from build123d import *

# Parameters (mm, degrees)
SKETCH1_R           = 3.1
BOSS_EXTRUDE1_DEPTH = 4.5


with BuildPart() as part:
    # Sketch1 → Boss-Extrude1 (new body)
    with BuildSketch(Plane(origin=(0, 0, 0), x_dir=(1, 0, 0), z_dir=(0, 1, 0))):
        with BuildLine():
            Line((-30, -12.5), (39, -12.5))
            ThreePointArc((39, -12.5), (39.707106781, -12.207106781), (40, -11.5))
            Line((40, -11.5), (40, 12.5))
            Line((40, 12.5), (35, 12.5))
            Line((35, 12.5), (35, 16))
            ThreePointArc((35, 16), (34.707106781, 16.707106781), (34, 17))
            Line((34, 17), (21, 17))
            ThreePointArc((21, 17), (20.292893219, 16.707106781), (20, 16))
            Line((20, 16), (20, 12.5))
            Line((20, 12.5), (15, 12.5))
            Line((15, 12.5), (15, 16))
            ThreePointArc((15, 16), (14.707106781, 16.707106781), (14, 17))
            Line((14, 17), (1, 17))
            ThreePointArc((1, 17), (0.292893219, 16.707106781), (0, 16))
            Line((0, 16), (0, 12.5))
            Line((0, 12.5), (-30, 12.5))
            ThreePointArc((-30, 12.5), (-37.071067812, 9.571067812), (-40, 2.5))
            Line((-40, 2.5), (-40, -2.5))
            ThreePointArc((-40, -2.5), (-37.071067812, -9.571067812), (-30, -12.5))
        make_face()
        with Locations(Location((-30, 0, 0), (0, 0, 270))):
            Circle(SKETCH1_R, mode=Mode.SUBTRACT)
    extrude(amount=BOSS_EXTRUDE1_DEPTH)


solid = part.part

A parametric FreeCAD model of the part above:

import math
import FreeCAD as App
import Part
import Sketcher
Q = App.Units.Quantity

doc = App.newDocument("Part")
params = doc.addObject("Spreadsheet::Sheet", "Params")
for row, (alias, value) in enumerate([
    ("sketch1_radius", "1 mm"),
    ("sketch1_radius2", "10 mm"),
    ("sketch1_diameter", "6.2 mm"),
    ("sketch1_width", "69 mm"),
    ("sketch1_width2", "5 mm"),
    ("pad1_length", "4.5 mm"),
], start=1):
    params.set(f"A{row}", alias)
    params.set(f"B{row}", "=" + value)
    params.setAlias(f"B{row}", alias)

body = doc.addObject("PartDesign::Body", "Body")

# Sketch on XZ plane
sketch1 = doc.addObject("Sketcher::SketchObject", "Sketch")
body.addObject(sketch1)
sketch1.AttachmentSupport = (doc.XZ_Plane, [""])
sketch1.MapMode = "FlatFace"
sketch1.addGeometry(Part.LineSegment(App.Vector(-30, 12.5, 0), App.Vector(39, 12.5, 0)), False)
sketch1.addGeometry(Part.ArcOfCircle(Part.Circle(App.Vector(39, 11.5, 0), App.Vector(0, 0, 1), 1), math.radians(0), math.radians(90)), False)
sketch1.addGeometry(Part.LineSegment(App.Vector(40, 11.5, 0), App.Vector(40, -12.5, 0)), False)
sketch1.addGeometry(Part.LineSegment(App.Vector(40, -12.5, 0), App.Vector(35, -12.5, 0)), False)
sketch1.addGeometry(Part.LineSegment(App.Vector(35, -12.5, 0), App.Vector(35, -16, 0)), False)
sketch1.addGeometry(Part.ArcOfCircle(Part.Circle(App.Vector(34, -16, 0), App.Vector(0, 0, 1), 1), math.radians(-90), math.radians(0)), False)
sketch1.addGeometry(Part.LineSegment(App.Vector(34, -17, 0), App.Vector(21, -17, 0)), False)
sketch1.addGeometry(Part.ArcOfCircle(Part.Circle(App.Vector(21, -16, 0), App.Vector(0, 0, 1), 1), math.radians(-180), math.radians(-90)), False)
sketch1.addGeometry(Part.LineSegment(App.Vector(20, -16, 0), App.Vector(20, -12.5, 0)), False)
sketch1.addGeometry(Part.LineSegment(App.Vector(20, -12.5, 0), App.Vector(15, -12.5, 0)), False)
sketch1.addGeometry(Part.LineSegment(App.Vector(15, -12.5, 0), App.Vector(15, -16, 0)), False)
sketch1.addGeometry(Part.ArcOfCircle(Part.Circle(App.Vector(14, -16, 0), App.Vector(0, 0, 1), 1), math.radians(-90), math.radians(0)), False)
sketch1.addGeometry(Part.LineSegment(App.Vector(14, -17, 0), App.Vector(1, -17, 0)), False)
sketch1.addGeometry(Part.ArcOfCircle(Part.Circle(App.Vector(1, -16, 0), App.Vector(0, 0, 1), 1), math.radians(-180), math.radians(-90)), False)
sketch1.addGeometry(Part.LineSegment(App.Vector(0, -16, 0), App.Vector(0, -12.5, 0)), False)
sketch1.addGeometry(Part.LineSegment(App.Vector(0, -12.5, 0), App.Vector(-30, -12.5, 0)), False)
sketch1.addGeometry(Part.ArcOfCircle(Part.Circle(App.Vector(-30, -2.5, 0), App.Vector(0, 0, 1), 10), math.radians(180), math.radians(270)), False)
sketch1.addGeometry(Part.LineSegment(App.Vector(-40, -2.5, 0), App.Vector(-40, 2.5, 0)), False)
sketch1.addGeometry(Part.ArcOfCircle(Part.Circle(App.Vector(-30, 2.5, 0), App.Vector(0, 0, 1), 10), math.radians(90), math.radians(180)), False)
sketch1.addGeometry(Part.Circle(App.Vector(-30, 0, 0), App.Vector(0, 0, 1), 3.1), False)
sketch1.addConstraint(Sketcher.Constraint("Tangent", 0, 2, 1, 2))
sketch1.addConstraint(Sketcher.Constraint("Tangent", 1, 1, 2, 1))
sketch1.addConstraint(Sketcher.Constraint("Coincident", 2, 2, 3, 1))
sketch1.addConstraint(Sketcher.Constraint("Coincident", 3, 2, 4, 1))
sketch1.addConstraint(Sketcher.Constraint("Tangent", 4, 2, 5, 2))
sketch1.addConstraint(Sketcher.Constraint("Tangent", 5, 1, 6, 1))
sketch1.addConstraint(Sketcher.Constraint("Tangent", 6, 2, 7, 2))
sketch1.addConstraint(Sketcher.Constraint("Tangent", 7, 1, 8, 1))
sketch1.addConstraint(Sketcher.Constraint("Coincident", 8, 2, 9, 1))
sketch1.addConstraint(Sketcher.Constraint("Coincident", 9, 2, 10, 1))
sketch1.addConstraint(Sketcher.Constraint("Tangent", 10, 2, 11, 2))
sketch1.addConstraint(Sketcher.Constraint("Tangent", 11, 1, 12, 1))
sketch1.addConstraint(Sketcher.Constraint("Tangent", 12, 2, 13, 2))
sketch1.addConstraint(Sketcher.Constraint("Tangent", 13, 1, 14, 1))
sketch1.addConstraint(Sketcher.Constraint("Coincident", 14, 2, 15, 1))
sketch1.addConstraint(Sketcher.Constraint("Tangent", 15, 2, 16, 2))
sketch1.addConstraint(Sketcher.Constraint("Tangent", 16, 1, 17, 1))
sketch1.addConstraint(Sketcher.Constraint("Tangent", 17, 2, 18, 2))
sketch1.addConstraint(Sketcher.Constraint("Tangent", 18, 1, 0, 1))
sketch1.addConstraint(Sketcher.Constraint("Horizontal", 0))
sketch1.addConstraint(Sketcher.Constraint("Vertical", 2))
sketch1.addConstraint(Sketcher.Constraint("Horizontal", 3))
sketch1.addConstraint(Sketcher.Constraint("Vertical", 4))
sketch1.addConstraint(Sketcher.Constraint("Horizontal", 6))
sketch1.addConstraint(Sketcher.Constraint("Vertical", 8))
sketch1.addConstraint(Sketcher.Constraint("Horizontal", 9))
sketch1.addConstraint(Sketcher.Constraint("Vertical", 10))
sketch1.addConstraint(Sketcher.Constraint("Horizontal", 12))
sketch1.addConstraint(Sketcher.Constraint("Vertical", 14))
sketch1.addConstraint(Sketcher.Constraint("Horizontal", 15))
sketch1.addConstraint(Sketcher.Constraint("Vertical", 17))
sketch1.addConstraint(Sketcher.Constraint("Equal", 1, 5))
sketch1.addConstraint(Sketcher.Constraint("Equal", 5, 7))
sketch1.addConstraint(Sketcher.Constraint("Equal", 7, 11))
sketch1.addConstraint(Sketcher.Constraint("Equal", 11, 13))
sketch1.addConstraint(Sketcher.Constraint("Equal", 16, 18))
sketch1.addConstraint(Sketcher.Constraint("PointOnObject", 19, 3, -1))
sketch1.addConstraint(Sketcher.Constraint("PointOnObject", 13, 1, -2))
sketch1.addConstraint(Sketcher.Constraint("Horizontal", 7, 3, 11, 3))
sketch1.addConstraint(Sketcher.Constraint("Horizontal", 3, 2, 8, 2))
sketch1.addConstraint(Sketcher.Constraint("Horizontal", 9, 2, 14, 2))
sketch1.addConstraint(Sketcher.Constraint("Vertical", 18, 3, 19, 3))
sketch1.addConstraint(Sketcher.Constraint("Equal", 3, 9))
sketch1.addConstraint(Sketcher.Constraint("Equal", 6, 12))
sketch1.addConstraint(Sketcher.Constraint("Equal", 9, 17))
sketch1.addConstraint(Sketcher.Constraint("Radius", 1, Q("1 mm")))
sketch1.addConstraint(Sketcher.Constraint("Radius", 16, Q("10 mm")))
sketch1.addConstraint(Sketcher.Constraint("Diameter", 19, Q("6.2 mm")))
sketch1.addConstraint(Sketcher.Constraint("DistanceX", 0, 1, 0, 2, Q("69 mm")))
sketch1.addConstraint(Sketcher.Constraint("DistanceX", 3, 2, 3, 1, Q("5 mm")))
sketch1.addConstraint(Sketcher.Constraint("DistanceX", 6, 2, 6, 1, Q("13 mm")))
sketch1.addConstraint(Sketcher.Constraint("DistanceY", 4, 2, 4, 1, Q("3.5 mm")))
sketch1.addConstraint(Sketcher.Constraint("DistanceY", 5, 3, -1, 1, Q("16 mm")))
sketch1.setExpression("Constraints[45]", "Params.sketch1_radius")
sketch1.setExpression("Constraints[46]", "Params.sketch1_radius2")
sketch1.setExpression("Constraints[47]", "Params.sketch1_diameter")
sketch1.setExpression("Constraints[48]", "Params.sketch1_width")
sketch1.setExpression("Constraints[49]", "Params.sketch1_width2")
pad1 = doc.addObject("PartDesign::Pad", "Pad")
body.addObject(pad1)
pad1.Profile = sketch1
pad1.setExpression("Length", "Params.pad1_length")
pad1.Reversed = True

doc.recompute()
